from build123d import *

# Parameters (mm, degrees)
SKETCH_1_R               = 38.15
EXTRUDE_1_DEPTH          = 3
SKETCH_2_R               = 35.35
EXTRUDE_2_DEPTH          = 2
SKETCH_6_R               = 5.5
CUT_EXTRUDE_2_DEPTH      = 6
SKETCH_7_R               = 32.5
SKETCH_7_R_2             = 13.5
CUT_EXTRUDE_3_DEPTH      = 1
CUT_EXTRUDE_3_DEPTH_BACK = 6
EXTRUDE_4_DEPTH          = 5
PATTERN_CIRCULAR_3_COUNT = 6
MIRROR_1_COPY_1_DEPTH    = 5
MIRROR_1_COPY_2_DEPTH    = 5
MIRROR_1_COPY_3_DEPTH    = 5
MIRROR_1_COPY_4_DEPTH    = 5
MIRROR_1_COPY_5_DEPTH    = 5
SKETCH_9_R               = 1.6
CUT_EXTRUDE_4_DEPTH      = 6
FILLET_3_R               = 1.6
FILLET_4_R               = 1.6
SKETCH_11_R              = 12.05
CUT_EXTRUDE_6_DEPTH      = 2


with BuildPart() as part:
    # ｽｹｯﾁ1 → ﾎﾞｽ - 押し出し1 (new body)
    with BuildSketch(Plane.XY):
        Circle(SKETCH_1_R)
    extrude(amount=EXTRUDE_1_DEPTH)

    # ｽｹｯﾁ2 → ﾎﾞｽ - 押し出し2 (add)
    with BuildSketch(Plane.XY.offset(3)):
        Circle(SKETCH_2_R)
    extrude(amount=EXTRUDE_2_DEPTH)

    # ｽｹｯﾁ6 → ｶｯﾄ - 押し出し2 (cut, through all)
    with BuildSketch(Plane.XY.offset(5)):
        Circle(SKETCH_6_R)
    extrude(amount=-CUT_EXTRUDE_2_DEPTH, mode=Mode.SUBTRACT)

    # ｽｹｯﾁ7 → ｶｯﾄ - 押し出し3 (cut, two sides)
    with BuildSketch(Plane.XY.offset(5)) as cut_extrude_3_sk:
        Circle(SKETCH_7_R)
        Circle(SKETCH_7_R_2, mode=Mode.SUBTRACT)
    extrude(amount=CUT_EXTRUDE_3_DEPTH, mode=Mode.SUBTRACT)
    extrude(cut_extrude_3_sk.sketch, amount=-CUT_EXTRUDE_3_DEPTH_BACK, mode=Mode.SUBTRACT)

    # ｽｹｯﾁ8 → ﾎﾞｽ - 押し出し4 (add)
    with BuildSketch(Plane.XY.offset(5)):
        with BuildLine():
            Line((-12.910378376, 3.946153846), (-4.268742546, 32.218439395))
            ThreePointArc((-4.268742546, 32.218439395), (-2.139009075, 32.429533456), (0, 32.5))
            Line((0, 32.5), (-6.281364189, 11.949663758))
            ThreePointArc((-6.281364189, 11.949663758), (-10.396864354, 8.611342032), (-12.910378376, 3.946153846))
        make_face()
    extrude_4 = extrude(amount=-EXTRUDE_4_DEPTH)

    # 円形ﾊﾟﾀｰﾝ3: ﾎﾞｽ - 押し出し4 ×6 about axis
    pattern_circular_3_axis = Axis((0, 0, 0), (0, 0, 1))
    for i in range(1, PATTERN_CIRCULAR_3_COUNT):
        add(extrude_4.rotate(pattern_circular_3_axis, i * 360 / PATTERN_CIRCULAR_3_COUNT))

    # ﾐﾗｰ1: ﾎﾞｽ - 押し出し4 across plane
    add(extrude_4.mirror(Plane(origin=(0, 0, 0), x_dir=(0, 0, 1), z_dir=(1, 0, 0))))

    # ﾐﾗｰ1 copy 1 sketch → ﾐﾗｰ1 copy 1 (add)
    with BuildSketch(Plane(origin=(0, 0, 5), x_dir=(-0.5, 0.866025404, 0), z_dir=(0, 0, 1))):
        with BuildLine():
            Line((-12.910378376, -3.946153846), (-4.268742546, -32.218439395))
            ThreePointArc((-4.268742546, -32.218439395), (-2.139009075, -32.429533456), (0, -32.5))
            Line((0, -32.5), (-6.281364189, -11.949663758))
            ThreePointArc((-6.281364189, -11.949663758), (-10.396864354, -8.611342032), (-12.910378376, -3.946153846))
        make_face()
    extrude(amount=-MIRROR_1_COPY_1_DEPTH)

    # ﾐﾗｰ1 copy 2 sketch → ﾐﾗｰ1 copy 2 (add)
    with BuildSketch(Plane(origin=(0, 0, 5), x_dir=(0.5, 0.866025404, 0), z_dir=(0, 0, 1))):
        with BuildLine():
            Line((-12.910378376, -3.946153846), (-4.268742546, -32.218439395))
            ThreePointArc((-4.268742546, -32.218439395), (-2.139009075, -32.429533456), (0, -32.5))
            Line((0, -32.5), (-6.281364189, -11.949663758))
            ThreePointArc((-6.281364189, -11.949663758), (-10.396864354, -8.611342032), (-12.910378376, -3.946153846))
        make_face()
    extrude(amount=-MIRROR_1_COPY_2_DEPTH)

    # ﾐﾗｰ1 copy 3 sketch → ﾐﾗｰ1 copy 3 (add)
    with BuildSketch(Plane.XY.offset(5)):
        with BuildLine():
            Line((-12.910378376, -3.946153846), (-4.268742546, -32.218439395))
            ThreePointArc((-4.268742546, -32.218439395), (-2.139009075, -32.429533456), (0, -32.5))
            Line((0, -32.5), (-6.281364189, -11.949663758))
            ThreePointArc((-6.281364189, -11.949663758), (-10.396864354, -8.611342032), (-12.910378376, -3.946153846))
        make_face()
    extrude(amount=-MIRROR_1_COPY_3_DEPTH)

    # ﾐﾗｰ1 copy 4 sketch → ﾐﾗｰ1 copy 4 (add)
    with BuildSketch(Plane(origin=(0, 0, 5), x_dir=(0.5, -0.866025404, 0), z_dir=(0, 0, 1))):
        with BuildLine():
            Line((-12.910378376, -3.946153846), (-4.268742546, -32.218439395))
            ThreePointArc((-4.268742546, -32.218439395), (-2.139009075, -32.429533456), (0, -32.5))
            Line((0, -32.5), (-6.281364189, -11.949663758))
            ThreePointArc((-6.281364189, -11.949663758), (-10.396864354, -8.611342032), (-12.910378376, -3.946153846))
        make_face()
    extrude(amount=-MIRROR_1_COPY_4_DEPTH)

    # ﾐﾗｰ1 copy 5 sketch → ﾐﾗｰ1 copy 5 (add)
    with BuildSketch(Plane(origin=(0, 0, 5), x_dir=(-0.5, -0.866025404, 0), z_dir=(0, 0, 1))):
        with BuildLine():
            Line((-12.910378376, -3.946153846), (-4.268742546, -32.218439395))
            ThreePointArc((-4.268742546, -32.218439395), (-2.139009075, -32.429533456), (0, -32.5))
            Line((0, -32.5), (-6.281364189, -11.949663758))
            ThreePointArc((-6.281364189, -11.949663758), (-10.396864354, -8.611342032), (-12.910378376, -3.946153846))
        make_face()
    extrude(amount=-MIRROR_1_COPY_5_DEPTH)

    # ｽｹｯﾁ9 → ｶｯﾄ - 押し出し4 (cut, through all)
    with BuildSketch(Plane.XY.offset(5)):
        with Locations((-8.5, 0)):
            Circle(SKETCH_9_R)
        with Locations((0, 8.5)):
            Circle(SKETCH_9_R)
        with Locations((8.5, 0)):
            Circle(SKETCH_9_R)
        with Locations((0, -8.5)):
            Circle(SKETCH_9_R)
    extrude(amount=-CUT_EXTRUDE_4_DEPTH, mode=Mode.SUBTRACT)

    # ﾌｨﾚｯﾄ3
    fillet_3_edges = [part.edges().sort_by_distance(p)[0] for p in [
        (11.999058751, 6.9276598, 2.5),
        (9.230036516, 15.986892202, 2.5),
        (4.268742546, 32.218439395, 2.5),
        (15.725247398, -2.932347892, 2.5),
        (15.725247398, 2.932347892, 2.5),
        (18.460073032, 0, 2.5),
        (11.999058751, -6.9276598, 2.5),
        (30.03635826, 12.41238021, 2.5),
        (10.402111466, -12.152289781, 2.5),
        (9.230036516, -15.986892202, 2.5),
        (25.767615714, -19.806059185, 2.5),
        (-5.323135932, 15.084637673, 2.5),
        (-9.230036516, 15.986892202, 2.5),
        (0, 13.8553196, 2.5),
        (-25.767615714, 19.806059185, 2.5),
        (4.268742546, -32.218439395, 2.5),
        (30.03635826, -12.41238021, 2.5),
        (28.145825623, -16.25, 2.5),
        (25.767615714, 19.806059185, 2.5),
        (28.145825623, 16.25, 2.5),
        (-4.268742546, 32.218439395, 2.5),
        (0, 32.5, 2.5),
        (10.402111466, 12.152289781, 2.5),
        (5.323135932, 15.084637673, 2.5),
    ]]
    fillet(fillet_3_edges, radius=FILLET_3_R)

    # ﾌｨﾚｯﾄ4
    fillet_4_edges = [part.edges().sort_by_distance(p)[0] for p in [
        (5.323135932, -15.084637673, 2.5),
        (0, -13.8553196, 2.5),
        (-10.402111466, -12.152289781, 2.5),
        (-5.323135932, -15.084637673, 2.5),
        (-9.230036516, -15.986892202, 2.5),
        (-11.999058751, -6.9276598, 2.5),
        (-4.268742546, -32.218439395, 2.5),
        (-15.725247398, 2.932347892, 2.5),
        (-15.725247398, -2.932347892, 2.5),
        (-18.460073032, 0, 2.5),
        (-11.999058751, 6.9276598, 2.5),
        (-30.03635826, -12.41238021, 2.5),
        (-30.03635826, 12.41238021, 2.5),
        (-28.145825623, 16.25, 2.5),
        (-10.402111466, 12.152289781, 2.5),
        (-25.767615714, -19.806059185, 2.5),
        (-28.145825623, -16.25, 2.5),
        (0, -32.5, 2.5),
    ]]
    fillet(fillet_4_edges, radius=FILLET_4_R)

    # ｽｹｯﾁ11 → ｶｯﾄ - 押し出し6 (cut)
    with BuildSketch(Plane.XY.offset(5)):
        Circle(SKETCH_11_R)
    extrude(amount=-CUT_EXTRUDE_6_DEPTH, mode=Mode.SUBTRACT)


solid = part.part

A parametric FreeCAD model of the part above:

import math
import FreeCAD as App
import Part
import Sketcher
from FreeCAD import Vector
Q = App.Units.Quantity


def edges_at(feature, points):
    """Names of the edges that pass closest to the given points."""
    edges = feature.Shape.Edges
    near = lambda p: min(range(len(edges)), key=lambda i: edges[i].distToShape(Part.Vertex(*p))[0])
    return sorted({f"Edge{near(p) + 1}" for p in points})

doc = App.newDocument("Part")
body = doc.addObject("PartDesign::Body", "Body")
body.AllowCompound = True

sketch1 = body.newObject("Sketcher::SketchObject", "Sketch")
sketch1.AttachmentSupport = (doc.getObject("XY_Plane"), [""])
sketch1.MapMode = "FlatFace"
sketch1.addGeometry(Part.Circle(Vector(0, 0, 0), Vector(0, 0, 1), 38), False)
sketch1.addConstraint([
    Sketcher.Constraint("Coincident", 0, 3, -1, 1),
    Sketcher.Constraint("Diameter", 0, Q("76.3 mm")),
])
pad1 = body.newObject("PartDesign::Pad", "Pad")
pad1.Profile = sketch1
pad1.Length = 3

sketch2 = body.newObject("Sketcher::SketchObject", "Sketch001")
sketch2.AttachmentSupport = (doc.getObject("XY_Plane"), [""])
sketch2.MapMode = "FlatFace"
sketch2.AttachmentOffset = App.Placement(Vector(0, 0, 3), App.Rotation())
sketch2.addGeometry(Part.Circle(Vector(0, 0, 0), Vector(0, 0, 1), 35), False)
sketch2.addConstraint([
    Sketcher.Constraint("Coincident", 0, 3, -1, 1),
    Sketcher.Constraint("Diameter", 0, Q("70.7 mm")),
])
pad2 = body.newObject("PartDesign::Pad", "Pad001")
pad2.Profile = sketch2
pad2.Length = 2

sketch3 = body.newObject("Sketcher::SketchObject", "Sketch002")
sketch3.AttachmentSupport = (doc.getObject("XY_Plane"), [""])
sketch3.MapMode = "FlatFace"
sketch3.AttachmentOffset = App.Placement(Vector(0, 0, 5), App.Rotation())
sketch3.addGeometry(Part.Circle(Vector(0, 0, 0), Vector(0, 0, 1), 6), False)
sketch3.addConstraint([
    Sketcher.Constraint("Coincident", 0, 3, -1, 1),
    Sketcher.Constraint("Diameter", 0, Q("11 mm")),
])
pocket1 = body.newObject("PartDesign::Pocket", "Pocket")
pocket1.Profile = sketch3
pocket1.Type = "ThroughAll"

sketch4 = body.newObject("Sketcher::SketchObject", "Sketch003")
sketch4.AttachmentSupport = (doc.getObject("XY_Plane"), [""])
sketch4.MapMode = "FlatFace"
sketch4.AttachmentOffset = App.Placement(Vector(0, 0, 5), App.Rotation())
sketch4.addGeometry([
    Part.Circle(Vector(0, 0, 0), Vector(0, 0, 1), 32),
    Part.Circle(Vector(0, 0, 0), Vector(0, 0, 1), 14),
], False)
sketch4.addConstraint([
    Sketcher.Constraint("Coincident", 0, 3, -1, 1),
    Sketcher.Constraint("Coincident", 1, 3, -1, 1),
    Sketcher.Constraint("Diameter", 0, Q("65 mm")),
    Sketcher.Constraint("Diameter", 1, Q("27 mm")),
])
pocket2 = body.newObject("PartDesign::Pocket", "Pocket001")
pocket2.Profile = sketch4
pocket2.Type = "ThroughAll"
pocket2.Midplane = True

sketch5 = body.newObject("Sketcher::SketchObject", "Sketch004")
sketch5.AttachmentSupport = (doc.getObject("XY_Plane"), [""])
sketch5.MapMode = "FlatFace"
sketch5.AttachmentOffset = App.Placement(Vector(0, 0, 5), App.Rotation())
sketch5.addGeometry([
    Part.LineSegment(Vector(-4.3, 32.2, 0), Vector(-12.9, 3.9, 0)),
    Part.ArcOfCircle(Part.Circle(Vector(0, 0, 0), Vector(0, 0, 1), 13.5), math.radians(118), math.radians(163)),
    Part.LineSegment(Vector(-6.3, 11.9, 0), Vector(0, 32.5, 0)),
    Part.ArcOfCircle(Part.Circle(Vector(0, 0, 0), Vector(0, 0, 1), 32.5), math.radians(90), math.radians(97.55)),
], False)
sketch5.addConstraint([
    Sketcher.Constraint("Tangent", 0, 2, 1, 2),
    Sketcher.Constraint("Coincident", 1, 1, 2, 1),
    Sketcher.Constraint("Coincident", 2, 2, 3, 1),
    Sketcher.Constraint("Coincident", 3, 2, 0, 1),
    Sketcher.Constraint("Coincident", 1, 3, -1, 1),
    Sketcher.Constraint("Coincident", 3, 3, -1, 1),
    Sketcher.Constraint("PointOnObject", 2, 2, -2),
    Sketcher.Constraint("Parallel", 0, 2),
    Sketcher.Constraint("Radius", 1, Q("13.5 mm")),
    Sketcher.Constraint("Radius", 3, Q("32.5 mm")),
    Sketcher.Constraint("DistanceX", 0, 2, -1, 1, Q("12.910378 mm")),
])
pad3 = body.newObject("PartDesign::Pad", "Pad002")
pad3.Profile = sketch5
pad3.Length = 5
pad3.Reversed = True
doc.recompute()

polarpattern = body.newObject("PartDesign::PolarPattern", "PolarPattern")
polarpattern.Originals = [pad3]
polarpattern.Axis = (doc.getObject("Z_Axis"), [""])
polarpattern.Angle = 360
polarpattern.Occurrences = 6
body.Tip = polarpattern
doc.recompute()

mirrored = body.newObject("PartDesign::Mirrored", "Mirrored")
mirrored.Originals = [pad3]
mirrored.MirrorPlane = (doc.getObject("YZ_Plane"), [""])
body.Tip = mirrored

sketch6 = body.newObject("Sketcher::SketchObject", "Sketch005")
sketch6.AttachmentSupport = (doc.getObject("XY_Plane"), [""])
sketch6.MapMode = "FlatFace"
sketch6.AttachmentOffset = App.Placement(Vector(0, 0, 5), App.Rotation())
sketch6.addGeometry([
    Part.LineSegment(Vector(9.9, -9.2, 0), Vector(30, 12.4, 0)),
    Part.ArcOfCircle(Part.Circle(Vector(0, 0, 0), Vector(0, 0, 1), 32.5), math.radians(22.45), math.radians(30)),
    Part.LineSegment(Vector(28.1, 16.2, 0), Vector(13.5, 0.5, 0)),
    Part.ArcOfCircle(Part.Circle(Vector(0, 0, 0), Vector(0, 0, 1), 13.5), math.radians(-43), math.radians(2)),
], False)
sketch6.addConstraint([
    Sketcher.Constraint("Coincident", 0, 2, 1, 1),
    Sketcher.Constraint("Coincident", 1, 2, 2, 1),
    Sketcher.Constraint("Coincident", 2, 2, 3, 2),
    Sketcher.Constraint("Tangent", 3, 1, 0, 1),
    Sketcher.Constraint("Coincident", 1, 3, -1, 1),
    Sketcher.Constraint("Coincident", 3, 3, -1, 1),
    Sketcher.Constraint("Parallel", 0, 2),
    Sketcher.Constraint("Radius", 1, Q("32.5 mm")),
    Sketcher.Constraint("Radius", 3, Q("13.5 mm")),
    Sketcher.Constraint("DistanceY", -1, 1, 1, 2, Q("16.25 mm")),
    Sketcher.Constraint("DistanceX", 3, 1, 0, 2, Q("20.1637 mm")),
])
pad4 = body.newObject("PartDesign::Pad", "Pad003")
pad4.Profile = sketch6
pad4.Length = 5
pad4.Reversed = True

sketch7 = body.newObject("Sketcher::SketchObject", "Sketch006")
sketch7.AttachmentSupport = (doc.getObject("XY_Plane"), [""])
sketch7.MapMode = "FlatFace"
sketch7.AttachmentOffset = App.Placement(Vector(0, 0, 5), App.Rotation())
sketch7.addGeometry([
    Part.LineSegment(Vector(-3, -13.2, 0), Vector(25.8, -19.8, 0)),
    Part.ArcOfCircle(Part.Circle(Vector(0, 0, 0), Vector(0, 0, 1), 32.5), math.radians(-37.55), math.radians(-30)),
    Part.LineSegment(Vector(28.1, -16.2, 0), Vector(7.2, -11.4, 0)),
    Part.ArcOfCircle(Part.Circle(Vector(0, 0, 0), Vector(0, 0, 1), 13.5), math.radians(-103), math.radians(-58)),
], False)
sketch7.addConstraint([
    Sketcher.Constraint("Coincident", 0, 2, 1, 1),
    Sketcher.Constraint("Coincident", 1, 2, 2, 1),
    Sketcher.Constraint("Coincident", 2, 2, 3, 2),
    Sketcher.Constraint("Tangent", 3, 1, 0, 1),
    Sketcher.Constraint("Coincident", 1, 3, -1, 1),
    Sketcher.Constraint("Coincident", 3, 3, -1, 1),
    Sketcher.Constraint("Parallel", 0, 2),
    Sketcher.Constraint("Radius", 1, Q("32.5 mm")),
    Sketcher.Constraint("Radius", 3, Q("13.5 mm")),
    Sketcher.Constraint("DistanceY", 1, 2, -1, 1, Q("16.25 mm")),
    Sketcher.Constraint("DistanceY", 0, 2, -1, 1, Q("19.806059 mm")),
])
pad5 = body.newObject("PartDesign::Pad", "Pad004")
pad5.Profile = sketch7
pad5.Length = 5
pad5.Reversed = True

sketch8 = body.newObject("Sketcher::SketchObject", "Sketch007")
sketch8.AttachmentSupport = (doc.getObject("XY_Plane"), [""])
sketch8.MapMode = "FlatFace"
sketch8.AttachmentOffset = App.Placement(Vector(0, 0, 5), App.Rotation())
sketch8.addGeometry([
    Part.LineSegment(Vector(-12.9, -3.9, 0), Vector(-4.3, -32.2, 0)),
    Part.ArcOfCircle(Part.Circle(Vector(0, 0, 0), Vector(0, 0, 1), 32.5), math.radians(-97.55), math.radians(-90)),
    Part.LineSegment(Vector(0, -32.5, 0), Vector(-6.3, -11.9, 0)),
    Part.ArcOfCircle(Part.Circle(Vector(0, 0, 0), Vector(0, 0, 1), 13.5), math.radians(-163), math.radians(-118)),
], False)
sketch8.addConstraint([
    Sketcher.Constraint("Coincident", 0, 2, 1, 1),
    Sketcher.Constraint("Coincident", 1, 2, 2, 1),
    Sketcher.Constraint("Coincident", 2, 2, 3, 2),
    Sketcher.Constraint("Tangent", 3, 1, 0, 1),
    Sketcher.Constraint("Coincident", 1, 3, -1, 1),
    Sketcher.Constraint("Coincident", 3, 3, -1, 1),
    Sketcher.Constraint("PointOnObject", 1, 2, -2),
    Sketcher.Constraint("Parallel", 0, 2),
    Sketcher.Constraint("Radius", 1, Q("32.5 mm")),
    Sketcher.Constraint("Radius", 3, Q("13.5 mm")),
    Sketcher.Constraint("DistanceY", 0, 2, -1, 1, Q("32.218439 mm")),
])
pad6 = body.newObject("PartDesign::Pad", "Pad005")
pad6.Profile = sketch8
pad6.Length = 5
pad6.Reversed = True

sketch9 = body.newObject("Sketcher::SketchObject", "Sketch008")
sketch9.AttachmentSupport = (doc.getObject("XY_Plane"), [""])
sketch9.MapMode = "FlatFace"
sketch9.AttachmentOffset = App.Placement(Vector(0, 0, 5), App.Rotation())
sketch9.addGeometry([
    Part.LineSegment(Vector(-9.9, 9.2, 0), Vector(-30, -12.4, 0)),
    Part.ArcOfCircle(Part.Circle(Vector(0, 0, 0), Vector(0, 0, 1), 32.5), math.radians(-157.55), math.radians(-150)),
    Part.LineSegment(Vector(-28.1, -16.2, 0), Vector(-13.5, -0.5, 0)),
    Part.ArcOfCircle(Part.Circle(Vector(0, 0, 0), Vector(0, 0, 1), 13.5), math.radians(137), math.radians(182)),
], False)
sketch9.addConstraint([
    Sketcher.Constraint("Coincident", 0, 2, 1, 1),
    Sketcher.Constraint("Coincident", 1, 2, 2, 1),
    Sketcher.Constraint("Coincident", 2, 2, 3, 2),
    Sketcher.Constraint("Tangent", 3, 1, 0, 1),
    Sketcher.Constraint("Coincident", 1, 3, -1, 1),
    Sketcher.Constraint("Coincident", 3, 3, -1, 1),
    Sketcher.Constraint("Parallel", 0, 2),
    Sketcher.Constraint("Radius", 1, Q("32.5 mm")),
    Sketcher.Constraint("Radius", 3, Q("13.5 mm")),
    Sketcher.Constraint("DistanceY", 1, 2, -1, 1, Q("16.25 mm")),
    Sketcher.Constraint("DistanceX", 0, 2, 3, 1, Q("20.1637 mm")),
])
pad7 = body.newObject("PartDesign::Pad", "Pad006")
pad7.Profile = sketch9
pad7.Length = 5
pad7.Reversed = True

sketch10 = body.newObject("Sketcher::SketchObject", "Sketch009")
sketch10.AttachmentSupport = (doc.getObject("XY_Plane"), [""])
sketch10.MapMode = "FlatFace"
sketch10.AttachmentOffset = App.Placement(Vector(0, 0, 5), App.Rotation())
sketch10.addGeometry([
    Part.LineSegment(Vector(3, 13.2, 0), Vector(-25.8, 19.8, 0)),
    Part.ArcOfCircle(Part.Circle(Vector(0, 0, 0), Vector(0, 0, 1), 32.5), math.radians(142.45), math.radians(150)),
    Part.LineSegment(Vector(-28.1, 16.2, 0), Vector(-7.2, 11.4, 0)),
    Part.ArcOfCircle(Part.Circle(Vector(0, 0, 0), Vector(0, 0, 1), 13.5), math.radians(77), math.radians(122)),
], False)
sketch10.addConstraint([
    Sketcher.Constraint("Coincident", 0, 2, 1, 1),
    Sketcher.Constraint("Coincident", 1, 2, 2, 1),
    Sketcher.Constraint("Coincident", 2, 2, 3, 2),
    Sketcher.Constraint("Tangent", 3, 1, 0, 1),
    Sketcher.Constraint("Coincident", 1, 3, -1, 1),
    Sketcher.Constraint("Coincident", 3, 3, -1, 1),
    Sketcher.Constraint("Parallel", 0, 2),
    Sketcher.Constraint("Radius", 1, Q("32.5 mm")),
    Sketcher.Constraint("Radius", 3, Q("13.5 mm")),
    Sketcher.Constraint("DistanceY", -1, 1, 1, 2, Q("16.25 mm")),
    Sketcher.Constraint("DistanceY", -1, 1, 0, 2, Q("19.806059 mm")),
])
pad8 = body.newObject("PartDesign::Pad", "Pad007")
pad8.Profile = sketch10
pad8.Length = 5
pad8.Reversed = True

sketch11 = body.newObject("Sketcher::SketchObject", "Sketch010")
sketch11.AttachmentSupport = (doc.getObject("XY_Plane"), [""])
sketch11.MapMode = "FlatFace"
sketch11.AttachmentOffset = App.Placement(Vector(0, 0, 5), App.Rotation())
sketch11.addGeometry([
    Part.Circle(Vector(-8.5, 0, 0), Vector(0, 0, 1), 1.6),
    Part.Circle(Vector(0, 8.5, 0), Vector(0, 0, 1), 1.6),
    Part.Circle(Vector(8.5, 0, 0), Vector(0, 0, 1), 1.6),
    Part.Circle(Vector(0, -8.5, 0), Vector(0, 0, 1), 1.6),
], False)
sketch11.addConstraint([
    Sketcher.Constraint("Equal", 0, 1),
    Sketcher.Constraint("Equal", 1, 2),
    Sketcher.Constraint("Equal", 2, 3),
    Sketcher.Constraint("Symmetric", 0, 3, 2, 3, -1, 1),
    Sketcher.Constraint("Symmetric", 1, 3, 3, 3, -1, 1),
    Sketcher.Constraint("PointOnObject", 0, 3, -1),
    Sketcher.Constraint("PointOnObject", 1, 3, -2),
    Sketcher.Constraint("Diameter", 0, Q("3.2 mm")),
    Sketcher.Constraint("DistanceX", 0, 3, 2, 3, Q("17 mm")),
    Sketcher.Constraint("DistanceY", 3, 3, 1, 3, Q("17 mm")),
])
pocket3 = body.newObject("PartDesign::Pocket", "Pocket002")
pocket3.Profile = sketch11
pocket3.Type = "ThroughAll"
doc.recompute()

fillet = body.newObject("PartDesign::Fillet", "Fillet")
fillet.Base = (pocket3, edges_at(pocket3, [
    (11.999, 6.928, 2.5),
    (9.23, 15.987, 2.5),
    (4.269, 32.218, 2.5),
    (15.725, -2.932, 2.5),
    (15.725, 2.932, 2.5),
    (18.46, 0, 2.5),
    (11.999, -6.928, 2.5),
    (30.036, 12.412, 2.5),
    (10.402, -12.152, 2.5),
    (9.23, -15.987, 2.5),
    (25.768, -19.806, 2.5),
    (-5.323, 15.085, 2.5),
    (-9.23, 15.987, 2.5),
    (0, 13.855, 2.5),
    (-25.768, 19.806, 2.5),
    (4.269, -32.218, 2.5),
    (30.036, -12.412, 2.5),
    (28.146, -16.25, 2.5),
    (25.768, 19.806, 2.5),
    (28.146, 16.25, 2.5),
    (-4.269, 32.218, 2.5),
    (0, 32.5, 2.5),
    (10.402, 12.152, 2.5),
    (5.323, 15.085, 2.5),
]))
fillet.Radius = 1.6
doc.recompute()

fillet2 = body.newObject("PartDesign::Fillet", "Fillet001")
fillet2.Base = (fillet, edges_at(fillet, [
    (5.323, -15.085, 2.5),
    (0, -13.855, 2.5),
    (-10.402, -12.152, 2.5),
    (-5.323, -15.085, 2.5),
    (-9.23, -15.987, 2.5),
    (-11.999, -6.928, 2.5),
    (-4.269, -32.218, 2.5),
    (-15.725, 2.932, 2.5),
    (-15.725, -2.932, 2.5),
    (-18.46, 0, 2.5),
    (-11.999, 6.928, 2.5),
    (-30.036, -12.412, 2.5),
    (-30.036, 12.412, 2.5),
    (-28.146, 16.25, 2.5),
    (-10.402, 12.152, 2.5),
    (-25.768, -19.806, 2.5),
    (-28.146, -16.25, 2.5),
    (0, -32.5, 2.5),
]))
fillet2.Radius = 1.6

sketch12 = body.newObject("Sketcher::SketchObject", "Sketch011")
sketch12.AttachmentSupport = (doc.getObject("XY_Plane"), [""])
sketch12.MapMode = "FlatFace"
sketch12.AttachmentOffset = App.Placement(Vector(0, 0, 5), App.Rotation())
sketch12.addGeometry(Part.Circle(Vector(0, 0, 0), Vector(0, 0, 1), 12), False)
sketch12.addConstraint([
    Sketcher.Constraint("Coincident", 0, 3, -1, 1),
    Sketcher.Constraint("Diameter", 0, Q("24.1 mm")),
])
pocket4 = body.newObject("PartDesign::Pocket", "Pocket003")
pocket4.Profile = sketch12
pocket4.Length = 2

doc.recompute()
